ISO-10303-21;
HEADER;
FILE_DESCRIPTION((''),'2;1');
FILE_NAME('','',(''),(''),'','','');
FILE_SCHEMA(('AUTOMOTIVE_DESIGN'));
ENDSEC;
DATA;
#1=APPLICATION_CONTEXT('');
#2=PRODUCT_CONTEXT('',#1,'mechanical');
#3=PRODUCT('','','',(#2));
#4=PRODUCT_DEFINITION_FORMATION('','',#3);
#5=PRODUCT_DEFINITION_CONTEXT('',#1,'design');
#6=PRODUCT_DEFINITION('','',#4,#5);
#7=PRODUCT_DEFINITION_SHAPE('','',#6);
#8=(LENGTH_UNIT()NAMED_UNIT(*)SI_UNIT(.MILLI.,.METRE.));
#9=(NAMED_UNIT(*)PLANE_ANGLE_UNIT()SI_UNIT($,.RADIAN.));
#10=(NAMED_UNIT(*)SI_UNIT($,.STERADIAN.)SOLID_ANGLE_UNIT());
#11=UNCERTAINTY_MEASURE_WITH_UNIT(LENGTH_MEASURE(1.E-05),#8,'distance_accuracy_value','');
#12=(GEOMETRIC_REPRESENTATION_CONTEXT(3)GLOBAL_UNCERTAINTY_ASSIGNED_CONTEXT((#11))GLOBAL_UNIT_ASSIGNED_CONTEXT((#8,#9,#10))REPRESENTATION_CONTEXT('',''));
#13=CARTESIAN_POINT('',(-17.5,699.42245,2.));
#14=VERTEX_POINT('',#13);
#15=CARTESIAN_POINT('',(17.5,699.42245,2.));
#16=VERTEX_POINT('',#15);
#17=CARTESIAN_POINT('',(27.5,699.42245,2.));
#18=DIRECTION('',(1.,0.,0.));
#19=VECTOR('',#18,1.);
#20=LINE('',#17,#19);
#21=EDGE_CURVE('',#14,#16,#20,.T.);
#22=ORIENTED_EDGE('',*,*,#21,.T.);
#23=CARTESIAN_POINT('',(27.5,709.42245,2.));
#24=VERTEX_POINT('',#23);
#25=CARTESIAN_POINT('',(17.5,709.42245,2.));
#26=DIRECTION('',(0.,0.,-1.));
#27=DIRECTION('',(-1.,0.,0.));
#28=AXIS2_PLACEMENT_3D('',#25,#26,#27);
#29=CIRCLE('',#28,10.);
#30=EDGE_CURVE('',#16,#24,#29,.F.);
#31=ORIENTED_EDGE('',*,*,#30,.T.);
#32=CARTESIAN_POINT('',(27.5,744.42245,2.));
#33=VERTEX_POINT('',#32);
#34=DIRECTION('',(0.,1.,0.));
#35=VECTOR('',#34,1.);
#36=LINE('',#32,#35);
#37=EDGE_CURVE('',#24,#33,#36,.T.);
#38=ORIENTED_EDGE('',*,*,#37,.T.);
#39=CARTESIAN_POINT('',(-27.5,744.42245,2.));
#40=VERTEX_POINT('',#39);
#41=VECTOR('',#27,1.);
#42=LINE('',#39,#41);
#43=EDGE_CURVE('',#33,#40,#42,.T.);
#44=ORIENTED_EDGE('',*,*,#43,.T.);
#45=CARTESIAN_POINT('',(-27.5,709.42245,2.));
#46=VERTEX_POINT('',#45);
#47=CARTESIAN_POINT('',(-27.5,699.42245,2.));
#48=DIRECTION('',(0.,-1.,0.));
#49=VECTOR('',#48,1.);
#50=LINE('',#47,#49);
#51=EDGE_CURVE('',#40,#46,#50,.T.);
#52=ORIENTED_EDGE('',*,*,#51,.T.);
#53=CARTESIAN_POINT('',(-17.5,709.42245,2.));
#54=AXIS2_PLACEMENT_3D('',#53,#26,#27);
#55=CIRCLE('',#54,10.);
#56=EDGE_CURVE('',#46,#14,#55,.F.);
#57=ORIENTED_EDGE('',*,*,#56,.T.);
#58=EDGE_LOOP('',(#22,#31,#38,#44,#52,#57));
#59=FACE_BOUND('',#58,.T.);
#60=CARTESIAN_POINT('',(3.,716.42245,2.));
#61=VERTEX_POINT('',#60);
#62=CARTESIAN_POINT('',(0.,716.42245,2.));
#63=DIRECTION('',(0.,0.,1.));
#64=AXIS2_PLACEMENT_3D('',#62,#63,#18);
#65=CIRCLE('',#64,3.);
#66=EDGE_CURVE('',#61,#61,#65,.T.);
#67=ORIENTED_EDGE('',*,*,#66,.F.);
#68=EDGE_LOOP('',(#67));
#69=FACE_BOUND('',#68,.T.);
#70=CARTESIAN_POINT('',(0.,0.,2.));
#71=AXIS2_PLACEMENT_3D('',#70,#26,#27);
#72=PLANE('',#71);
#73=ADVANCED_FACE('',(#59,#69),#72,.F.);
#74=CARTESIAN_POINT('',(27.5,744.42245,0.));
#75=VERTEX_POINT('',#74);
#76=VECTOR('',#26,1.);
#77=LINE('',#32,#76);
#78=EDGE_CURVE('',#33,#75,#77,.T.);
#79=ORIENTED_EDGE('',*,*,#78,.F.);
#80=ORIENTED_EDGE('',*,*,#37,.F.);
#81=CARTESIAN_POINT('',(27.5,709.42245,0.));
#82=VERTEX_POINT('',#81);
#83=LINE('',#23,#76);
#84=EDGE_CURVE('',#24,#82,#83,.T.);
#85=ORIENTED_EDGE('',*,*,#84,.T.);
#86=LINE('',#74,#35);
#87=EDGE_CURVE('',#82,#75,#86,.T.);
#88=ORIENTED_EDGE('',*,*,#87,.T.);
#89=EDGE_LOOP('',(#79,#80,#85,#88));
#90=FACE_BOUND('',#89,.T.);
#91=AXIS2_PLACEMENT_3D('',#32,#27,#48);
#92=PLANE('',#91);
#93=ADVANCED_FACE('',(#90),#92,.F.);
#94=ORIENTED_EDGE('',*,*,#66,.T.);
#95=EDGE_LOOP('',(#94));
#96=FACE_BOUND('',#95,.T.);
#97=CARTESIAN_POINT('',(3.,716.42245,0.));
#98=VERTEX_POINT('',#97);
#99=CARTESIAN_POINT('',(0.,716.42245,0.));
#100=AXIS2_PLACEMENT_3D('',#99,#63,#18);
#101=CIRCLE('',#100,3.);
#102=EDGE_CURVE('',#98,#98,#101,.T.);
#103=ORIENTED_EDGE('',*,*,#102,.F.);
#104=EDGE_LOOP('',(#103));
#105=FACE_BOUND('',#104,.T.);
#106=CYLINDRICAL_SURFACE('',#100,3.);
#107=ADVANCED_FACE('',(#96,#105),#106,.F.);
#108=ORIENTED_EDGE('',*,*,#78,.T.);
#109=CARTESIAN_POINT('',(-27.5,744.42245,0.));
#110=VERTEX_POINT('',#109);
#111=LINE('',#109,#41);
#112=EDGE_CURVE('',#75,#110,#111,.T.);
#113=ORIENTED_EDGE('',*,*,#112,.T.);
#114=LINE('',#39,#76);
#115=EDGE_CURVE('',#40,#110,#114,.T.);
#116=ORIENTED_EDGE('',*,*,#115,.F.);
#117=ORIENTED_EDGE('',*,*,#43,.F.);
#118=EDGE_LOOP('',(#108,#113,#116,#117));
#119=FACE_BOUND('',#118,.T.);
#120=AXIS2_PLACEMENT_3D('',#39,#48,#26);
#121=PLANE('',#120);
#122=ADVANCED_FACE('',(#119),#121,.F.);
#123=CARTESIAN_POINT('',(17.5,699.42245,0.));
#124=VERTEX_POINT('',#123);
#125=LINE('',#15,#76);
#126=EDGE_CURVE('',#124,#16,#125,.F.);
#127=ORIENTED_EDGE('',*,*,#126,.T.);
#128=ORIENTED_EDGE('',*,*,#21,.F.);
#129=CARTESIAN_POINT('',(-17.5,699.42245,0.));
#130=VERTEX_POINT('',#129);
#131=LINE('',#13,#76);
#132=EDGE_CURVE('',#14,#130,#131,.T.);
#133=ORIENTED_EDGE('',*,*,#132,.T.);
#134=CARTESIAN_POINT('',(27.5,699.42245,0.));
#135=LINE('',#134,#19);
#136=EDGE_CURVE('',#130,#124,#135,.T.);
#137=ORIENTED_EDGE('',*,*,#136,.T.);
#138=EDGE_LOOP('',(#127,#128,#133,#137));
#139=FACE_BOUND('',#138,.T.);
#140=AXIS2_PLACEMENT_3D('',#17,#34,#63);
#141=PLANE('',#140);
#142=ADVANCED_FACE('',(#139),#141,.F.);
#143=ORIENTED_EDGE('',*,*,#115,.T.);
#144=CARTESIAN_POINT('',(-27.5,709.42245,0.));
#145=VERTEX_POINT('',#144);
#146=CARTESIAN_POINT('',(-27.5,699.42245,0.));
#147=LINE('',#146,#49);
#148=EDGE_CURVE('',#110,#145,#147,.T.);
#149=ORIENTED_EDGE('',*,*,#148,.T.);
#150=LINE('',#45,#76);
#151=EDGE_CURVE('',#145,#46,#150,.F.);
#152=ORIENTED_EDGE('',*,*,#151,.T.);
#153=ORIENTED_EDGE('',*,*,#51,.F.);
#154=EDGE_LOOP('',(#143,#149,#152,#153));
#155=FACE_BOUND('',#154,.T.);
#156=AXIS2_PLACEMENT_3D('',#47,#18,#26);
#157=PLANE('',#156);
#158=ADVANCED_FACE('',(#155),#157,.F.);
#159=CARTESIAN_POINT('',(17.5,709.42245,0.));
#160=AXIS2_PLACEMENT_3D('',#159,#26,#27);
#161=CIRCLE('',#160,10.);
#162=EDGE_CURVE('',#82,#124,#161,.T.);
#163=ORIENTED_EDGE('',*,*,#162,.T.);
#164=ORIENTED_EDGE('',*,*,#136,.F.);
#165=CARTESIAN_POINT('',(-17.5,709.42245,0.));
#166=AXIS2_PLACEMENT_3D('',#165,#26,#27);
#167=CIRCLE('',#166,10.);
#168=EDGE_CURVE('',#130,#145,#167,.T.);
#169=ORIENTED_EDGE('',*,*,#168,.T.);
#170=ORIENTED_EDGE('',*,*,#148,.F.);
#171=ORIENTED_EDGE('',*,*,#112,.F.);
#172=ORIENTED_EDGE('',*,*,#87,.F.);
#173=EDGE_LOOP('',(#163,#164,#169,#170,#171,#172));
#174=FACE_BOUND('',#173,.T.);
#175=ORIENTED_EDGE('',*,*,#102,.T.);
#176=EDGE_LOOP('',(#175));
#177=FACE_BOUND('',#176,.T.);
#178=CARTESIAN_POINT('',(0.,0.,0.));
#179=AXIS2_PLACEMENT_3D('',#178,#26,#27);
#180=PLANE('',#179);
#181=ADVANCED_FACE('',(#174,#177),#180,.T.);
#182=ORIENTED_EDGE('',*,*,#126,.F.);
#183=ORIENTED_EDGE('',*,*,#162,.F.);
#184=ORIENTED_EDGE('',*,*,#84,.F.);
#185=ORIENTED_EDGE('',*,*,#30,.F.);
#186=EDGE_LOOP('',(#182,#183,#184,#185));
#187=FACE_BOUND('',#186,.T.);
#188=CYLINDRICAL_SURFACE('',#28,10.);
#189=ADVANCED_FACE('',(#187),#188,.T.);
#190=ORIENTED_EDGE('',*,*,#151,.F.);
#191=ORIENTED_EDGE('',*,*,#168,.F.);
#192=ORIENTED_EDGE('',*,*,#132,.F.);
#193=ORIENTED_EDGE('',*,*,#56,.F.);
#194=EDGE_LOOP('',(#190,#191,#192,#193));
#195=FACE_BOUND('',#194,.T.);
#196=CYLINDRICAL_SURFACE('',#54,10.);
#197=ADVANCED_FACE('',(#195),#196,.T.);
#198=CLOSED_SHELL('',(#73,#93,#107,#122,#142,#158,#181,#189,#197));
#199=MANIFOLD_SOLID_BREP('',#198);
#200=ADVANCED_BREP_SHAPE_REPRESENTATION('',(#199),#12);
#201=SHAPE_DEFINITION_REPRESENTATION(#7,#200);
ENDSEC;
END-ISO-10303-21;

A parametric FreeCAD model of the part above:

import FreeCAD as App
import Part
import Sketcher
from FreeCAD import Vector
Q = App.Units.Quantity


def edges_at(feature, points):
    """Names of the edges that pass closest to the given points."""
    edges = feature.Shape.Edges
    near = lambda p: min(range(len(edges)), key=lambda i: edges[i].distToShape(Part.Vertex(*p))[0])
    return sorted({f"Edge{near(p) + 1}" for p in points})

doc = App.newDocument("Part")
body = doc.addObject("PartDesign::Body", "Body")

# Sketch on XY plane
sketch1 = doc.addObject("Sketcher::SketchObject", "Sketch")
body.addObject(sketch1)
sketch1.AttachmentSupport = (doc.XY_Plane, [""])
sketch1.MapMode = "FlatFace"
sketch1.addGeometry([
    Part.LineSegment(Vector(-28, 744, 0), Vector(-28, 699, 0)),
    Part.LineSegment(Vector(-28, 699, 0), Vector(28, 699, 0)),
    Part.LineSegment(Vector(28, 699, 0), Vector(28, 744, 0)),
    Part.LineSegment(Vector(28, 744, 0), Vector(-28, 744, 0)),
], False)
sketch1.addConstraint([
    Sketcher.Constraint("Coincident", 0, 2, 1, 1),
    Sketcher.Constraint("Coincident", 1, 2, 2, 1),
    Sketcher.Constraint("Coincident", 2, 2, 3, 1),
    Sketcher.Constraint("Coincident", 3, 2, 0, 1),
    Sketcher.Constraint("Vertical", 0),
    Sketcher.Constraint("Horizontal", 1),
    Sketcher.Constraint("Vertical", 2),
    Sketcher.Constraint("Horizontal", 3),
    Sketcher.Constraint("DistanceX", 1, 1, 1, 2, Q("55 mm")),
    Sketcher.Constraint("DistanceY", 0, 2, 0, 1, Q("45 mm")),
    Sketcher.Constraint("DistanceX", 0, 2, -1, 1, Q("27.5 mm")),
    Sketcher.Constraint("DistanceY", -1, 1, 0, 2, Q("699.42245 mm")),
])
pad1 = doc.addObject("PartDesign::Pad", "Pad")
body.addObject(pad1)
pad1.Profile = sketch1
pad1.Length = 2
doc.recompute()

fillet = doc.addObject("PartDesign::Fillet", "Fillet")
body.addObject(fillet)
fillet.Base = (pad1, edges_at(pad1, [(-27.5, 699.422, 1)]))
fillet.Radius = 10
doc.recompute()

fillet2 = doc.addObject("PartDesign::Fillet", "Fillet001")
body.addObject(fillet2)
fillet2.Base = (fillet, edges_at(fillet, [(27.5, 699.422, 1)]))
fillet2.Radius = 10

# Sketch on XY plane
sketch2 = doc.addObject("Sketcher::SketchObject", "Sketch001")
body.addObject(sketch2)
sketch2.AttachmentSupport = (doc.XY_Plane, [""])
sketch2.MapMode = "FlatFace"
sketch2.AttachmentOffset = App.Placement(Vector(0, 0, 2), App.Rotation())
sketch2.addGeometry(Part.Circle(Vector(0, 716.4, 0), Vector(0, 0, 1), 3), False)
sketch2.addConstraint([
    Sketcher.Constraint("PointOnObject", 0, 3, -2),
    Sketcher.Constraint("Diameter", 0, Q("6 mm")),
    Sketcher.Constraint("DistanceY", -1, 1, 0, 3, Q("716.42245 mm")),
])
pocket1 = doc.addObject("PartDesign::Pocket", "Pocket")
body.addObject(pocket1)
pocket1.Profile = sketch2
pocket1.Length = 2

doc.recompute()
